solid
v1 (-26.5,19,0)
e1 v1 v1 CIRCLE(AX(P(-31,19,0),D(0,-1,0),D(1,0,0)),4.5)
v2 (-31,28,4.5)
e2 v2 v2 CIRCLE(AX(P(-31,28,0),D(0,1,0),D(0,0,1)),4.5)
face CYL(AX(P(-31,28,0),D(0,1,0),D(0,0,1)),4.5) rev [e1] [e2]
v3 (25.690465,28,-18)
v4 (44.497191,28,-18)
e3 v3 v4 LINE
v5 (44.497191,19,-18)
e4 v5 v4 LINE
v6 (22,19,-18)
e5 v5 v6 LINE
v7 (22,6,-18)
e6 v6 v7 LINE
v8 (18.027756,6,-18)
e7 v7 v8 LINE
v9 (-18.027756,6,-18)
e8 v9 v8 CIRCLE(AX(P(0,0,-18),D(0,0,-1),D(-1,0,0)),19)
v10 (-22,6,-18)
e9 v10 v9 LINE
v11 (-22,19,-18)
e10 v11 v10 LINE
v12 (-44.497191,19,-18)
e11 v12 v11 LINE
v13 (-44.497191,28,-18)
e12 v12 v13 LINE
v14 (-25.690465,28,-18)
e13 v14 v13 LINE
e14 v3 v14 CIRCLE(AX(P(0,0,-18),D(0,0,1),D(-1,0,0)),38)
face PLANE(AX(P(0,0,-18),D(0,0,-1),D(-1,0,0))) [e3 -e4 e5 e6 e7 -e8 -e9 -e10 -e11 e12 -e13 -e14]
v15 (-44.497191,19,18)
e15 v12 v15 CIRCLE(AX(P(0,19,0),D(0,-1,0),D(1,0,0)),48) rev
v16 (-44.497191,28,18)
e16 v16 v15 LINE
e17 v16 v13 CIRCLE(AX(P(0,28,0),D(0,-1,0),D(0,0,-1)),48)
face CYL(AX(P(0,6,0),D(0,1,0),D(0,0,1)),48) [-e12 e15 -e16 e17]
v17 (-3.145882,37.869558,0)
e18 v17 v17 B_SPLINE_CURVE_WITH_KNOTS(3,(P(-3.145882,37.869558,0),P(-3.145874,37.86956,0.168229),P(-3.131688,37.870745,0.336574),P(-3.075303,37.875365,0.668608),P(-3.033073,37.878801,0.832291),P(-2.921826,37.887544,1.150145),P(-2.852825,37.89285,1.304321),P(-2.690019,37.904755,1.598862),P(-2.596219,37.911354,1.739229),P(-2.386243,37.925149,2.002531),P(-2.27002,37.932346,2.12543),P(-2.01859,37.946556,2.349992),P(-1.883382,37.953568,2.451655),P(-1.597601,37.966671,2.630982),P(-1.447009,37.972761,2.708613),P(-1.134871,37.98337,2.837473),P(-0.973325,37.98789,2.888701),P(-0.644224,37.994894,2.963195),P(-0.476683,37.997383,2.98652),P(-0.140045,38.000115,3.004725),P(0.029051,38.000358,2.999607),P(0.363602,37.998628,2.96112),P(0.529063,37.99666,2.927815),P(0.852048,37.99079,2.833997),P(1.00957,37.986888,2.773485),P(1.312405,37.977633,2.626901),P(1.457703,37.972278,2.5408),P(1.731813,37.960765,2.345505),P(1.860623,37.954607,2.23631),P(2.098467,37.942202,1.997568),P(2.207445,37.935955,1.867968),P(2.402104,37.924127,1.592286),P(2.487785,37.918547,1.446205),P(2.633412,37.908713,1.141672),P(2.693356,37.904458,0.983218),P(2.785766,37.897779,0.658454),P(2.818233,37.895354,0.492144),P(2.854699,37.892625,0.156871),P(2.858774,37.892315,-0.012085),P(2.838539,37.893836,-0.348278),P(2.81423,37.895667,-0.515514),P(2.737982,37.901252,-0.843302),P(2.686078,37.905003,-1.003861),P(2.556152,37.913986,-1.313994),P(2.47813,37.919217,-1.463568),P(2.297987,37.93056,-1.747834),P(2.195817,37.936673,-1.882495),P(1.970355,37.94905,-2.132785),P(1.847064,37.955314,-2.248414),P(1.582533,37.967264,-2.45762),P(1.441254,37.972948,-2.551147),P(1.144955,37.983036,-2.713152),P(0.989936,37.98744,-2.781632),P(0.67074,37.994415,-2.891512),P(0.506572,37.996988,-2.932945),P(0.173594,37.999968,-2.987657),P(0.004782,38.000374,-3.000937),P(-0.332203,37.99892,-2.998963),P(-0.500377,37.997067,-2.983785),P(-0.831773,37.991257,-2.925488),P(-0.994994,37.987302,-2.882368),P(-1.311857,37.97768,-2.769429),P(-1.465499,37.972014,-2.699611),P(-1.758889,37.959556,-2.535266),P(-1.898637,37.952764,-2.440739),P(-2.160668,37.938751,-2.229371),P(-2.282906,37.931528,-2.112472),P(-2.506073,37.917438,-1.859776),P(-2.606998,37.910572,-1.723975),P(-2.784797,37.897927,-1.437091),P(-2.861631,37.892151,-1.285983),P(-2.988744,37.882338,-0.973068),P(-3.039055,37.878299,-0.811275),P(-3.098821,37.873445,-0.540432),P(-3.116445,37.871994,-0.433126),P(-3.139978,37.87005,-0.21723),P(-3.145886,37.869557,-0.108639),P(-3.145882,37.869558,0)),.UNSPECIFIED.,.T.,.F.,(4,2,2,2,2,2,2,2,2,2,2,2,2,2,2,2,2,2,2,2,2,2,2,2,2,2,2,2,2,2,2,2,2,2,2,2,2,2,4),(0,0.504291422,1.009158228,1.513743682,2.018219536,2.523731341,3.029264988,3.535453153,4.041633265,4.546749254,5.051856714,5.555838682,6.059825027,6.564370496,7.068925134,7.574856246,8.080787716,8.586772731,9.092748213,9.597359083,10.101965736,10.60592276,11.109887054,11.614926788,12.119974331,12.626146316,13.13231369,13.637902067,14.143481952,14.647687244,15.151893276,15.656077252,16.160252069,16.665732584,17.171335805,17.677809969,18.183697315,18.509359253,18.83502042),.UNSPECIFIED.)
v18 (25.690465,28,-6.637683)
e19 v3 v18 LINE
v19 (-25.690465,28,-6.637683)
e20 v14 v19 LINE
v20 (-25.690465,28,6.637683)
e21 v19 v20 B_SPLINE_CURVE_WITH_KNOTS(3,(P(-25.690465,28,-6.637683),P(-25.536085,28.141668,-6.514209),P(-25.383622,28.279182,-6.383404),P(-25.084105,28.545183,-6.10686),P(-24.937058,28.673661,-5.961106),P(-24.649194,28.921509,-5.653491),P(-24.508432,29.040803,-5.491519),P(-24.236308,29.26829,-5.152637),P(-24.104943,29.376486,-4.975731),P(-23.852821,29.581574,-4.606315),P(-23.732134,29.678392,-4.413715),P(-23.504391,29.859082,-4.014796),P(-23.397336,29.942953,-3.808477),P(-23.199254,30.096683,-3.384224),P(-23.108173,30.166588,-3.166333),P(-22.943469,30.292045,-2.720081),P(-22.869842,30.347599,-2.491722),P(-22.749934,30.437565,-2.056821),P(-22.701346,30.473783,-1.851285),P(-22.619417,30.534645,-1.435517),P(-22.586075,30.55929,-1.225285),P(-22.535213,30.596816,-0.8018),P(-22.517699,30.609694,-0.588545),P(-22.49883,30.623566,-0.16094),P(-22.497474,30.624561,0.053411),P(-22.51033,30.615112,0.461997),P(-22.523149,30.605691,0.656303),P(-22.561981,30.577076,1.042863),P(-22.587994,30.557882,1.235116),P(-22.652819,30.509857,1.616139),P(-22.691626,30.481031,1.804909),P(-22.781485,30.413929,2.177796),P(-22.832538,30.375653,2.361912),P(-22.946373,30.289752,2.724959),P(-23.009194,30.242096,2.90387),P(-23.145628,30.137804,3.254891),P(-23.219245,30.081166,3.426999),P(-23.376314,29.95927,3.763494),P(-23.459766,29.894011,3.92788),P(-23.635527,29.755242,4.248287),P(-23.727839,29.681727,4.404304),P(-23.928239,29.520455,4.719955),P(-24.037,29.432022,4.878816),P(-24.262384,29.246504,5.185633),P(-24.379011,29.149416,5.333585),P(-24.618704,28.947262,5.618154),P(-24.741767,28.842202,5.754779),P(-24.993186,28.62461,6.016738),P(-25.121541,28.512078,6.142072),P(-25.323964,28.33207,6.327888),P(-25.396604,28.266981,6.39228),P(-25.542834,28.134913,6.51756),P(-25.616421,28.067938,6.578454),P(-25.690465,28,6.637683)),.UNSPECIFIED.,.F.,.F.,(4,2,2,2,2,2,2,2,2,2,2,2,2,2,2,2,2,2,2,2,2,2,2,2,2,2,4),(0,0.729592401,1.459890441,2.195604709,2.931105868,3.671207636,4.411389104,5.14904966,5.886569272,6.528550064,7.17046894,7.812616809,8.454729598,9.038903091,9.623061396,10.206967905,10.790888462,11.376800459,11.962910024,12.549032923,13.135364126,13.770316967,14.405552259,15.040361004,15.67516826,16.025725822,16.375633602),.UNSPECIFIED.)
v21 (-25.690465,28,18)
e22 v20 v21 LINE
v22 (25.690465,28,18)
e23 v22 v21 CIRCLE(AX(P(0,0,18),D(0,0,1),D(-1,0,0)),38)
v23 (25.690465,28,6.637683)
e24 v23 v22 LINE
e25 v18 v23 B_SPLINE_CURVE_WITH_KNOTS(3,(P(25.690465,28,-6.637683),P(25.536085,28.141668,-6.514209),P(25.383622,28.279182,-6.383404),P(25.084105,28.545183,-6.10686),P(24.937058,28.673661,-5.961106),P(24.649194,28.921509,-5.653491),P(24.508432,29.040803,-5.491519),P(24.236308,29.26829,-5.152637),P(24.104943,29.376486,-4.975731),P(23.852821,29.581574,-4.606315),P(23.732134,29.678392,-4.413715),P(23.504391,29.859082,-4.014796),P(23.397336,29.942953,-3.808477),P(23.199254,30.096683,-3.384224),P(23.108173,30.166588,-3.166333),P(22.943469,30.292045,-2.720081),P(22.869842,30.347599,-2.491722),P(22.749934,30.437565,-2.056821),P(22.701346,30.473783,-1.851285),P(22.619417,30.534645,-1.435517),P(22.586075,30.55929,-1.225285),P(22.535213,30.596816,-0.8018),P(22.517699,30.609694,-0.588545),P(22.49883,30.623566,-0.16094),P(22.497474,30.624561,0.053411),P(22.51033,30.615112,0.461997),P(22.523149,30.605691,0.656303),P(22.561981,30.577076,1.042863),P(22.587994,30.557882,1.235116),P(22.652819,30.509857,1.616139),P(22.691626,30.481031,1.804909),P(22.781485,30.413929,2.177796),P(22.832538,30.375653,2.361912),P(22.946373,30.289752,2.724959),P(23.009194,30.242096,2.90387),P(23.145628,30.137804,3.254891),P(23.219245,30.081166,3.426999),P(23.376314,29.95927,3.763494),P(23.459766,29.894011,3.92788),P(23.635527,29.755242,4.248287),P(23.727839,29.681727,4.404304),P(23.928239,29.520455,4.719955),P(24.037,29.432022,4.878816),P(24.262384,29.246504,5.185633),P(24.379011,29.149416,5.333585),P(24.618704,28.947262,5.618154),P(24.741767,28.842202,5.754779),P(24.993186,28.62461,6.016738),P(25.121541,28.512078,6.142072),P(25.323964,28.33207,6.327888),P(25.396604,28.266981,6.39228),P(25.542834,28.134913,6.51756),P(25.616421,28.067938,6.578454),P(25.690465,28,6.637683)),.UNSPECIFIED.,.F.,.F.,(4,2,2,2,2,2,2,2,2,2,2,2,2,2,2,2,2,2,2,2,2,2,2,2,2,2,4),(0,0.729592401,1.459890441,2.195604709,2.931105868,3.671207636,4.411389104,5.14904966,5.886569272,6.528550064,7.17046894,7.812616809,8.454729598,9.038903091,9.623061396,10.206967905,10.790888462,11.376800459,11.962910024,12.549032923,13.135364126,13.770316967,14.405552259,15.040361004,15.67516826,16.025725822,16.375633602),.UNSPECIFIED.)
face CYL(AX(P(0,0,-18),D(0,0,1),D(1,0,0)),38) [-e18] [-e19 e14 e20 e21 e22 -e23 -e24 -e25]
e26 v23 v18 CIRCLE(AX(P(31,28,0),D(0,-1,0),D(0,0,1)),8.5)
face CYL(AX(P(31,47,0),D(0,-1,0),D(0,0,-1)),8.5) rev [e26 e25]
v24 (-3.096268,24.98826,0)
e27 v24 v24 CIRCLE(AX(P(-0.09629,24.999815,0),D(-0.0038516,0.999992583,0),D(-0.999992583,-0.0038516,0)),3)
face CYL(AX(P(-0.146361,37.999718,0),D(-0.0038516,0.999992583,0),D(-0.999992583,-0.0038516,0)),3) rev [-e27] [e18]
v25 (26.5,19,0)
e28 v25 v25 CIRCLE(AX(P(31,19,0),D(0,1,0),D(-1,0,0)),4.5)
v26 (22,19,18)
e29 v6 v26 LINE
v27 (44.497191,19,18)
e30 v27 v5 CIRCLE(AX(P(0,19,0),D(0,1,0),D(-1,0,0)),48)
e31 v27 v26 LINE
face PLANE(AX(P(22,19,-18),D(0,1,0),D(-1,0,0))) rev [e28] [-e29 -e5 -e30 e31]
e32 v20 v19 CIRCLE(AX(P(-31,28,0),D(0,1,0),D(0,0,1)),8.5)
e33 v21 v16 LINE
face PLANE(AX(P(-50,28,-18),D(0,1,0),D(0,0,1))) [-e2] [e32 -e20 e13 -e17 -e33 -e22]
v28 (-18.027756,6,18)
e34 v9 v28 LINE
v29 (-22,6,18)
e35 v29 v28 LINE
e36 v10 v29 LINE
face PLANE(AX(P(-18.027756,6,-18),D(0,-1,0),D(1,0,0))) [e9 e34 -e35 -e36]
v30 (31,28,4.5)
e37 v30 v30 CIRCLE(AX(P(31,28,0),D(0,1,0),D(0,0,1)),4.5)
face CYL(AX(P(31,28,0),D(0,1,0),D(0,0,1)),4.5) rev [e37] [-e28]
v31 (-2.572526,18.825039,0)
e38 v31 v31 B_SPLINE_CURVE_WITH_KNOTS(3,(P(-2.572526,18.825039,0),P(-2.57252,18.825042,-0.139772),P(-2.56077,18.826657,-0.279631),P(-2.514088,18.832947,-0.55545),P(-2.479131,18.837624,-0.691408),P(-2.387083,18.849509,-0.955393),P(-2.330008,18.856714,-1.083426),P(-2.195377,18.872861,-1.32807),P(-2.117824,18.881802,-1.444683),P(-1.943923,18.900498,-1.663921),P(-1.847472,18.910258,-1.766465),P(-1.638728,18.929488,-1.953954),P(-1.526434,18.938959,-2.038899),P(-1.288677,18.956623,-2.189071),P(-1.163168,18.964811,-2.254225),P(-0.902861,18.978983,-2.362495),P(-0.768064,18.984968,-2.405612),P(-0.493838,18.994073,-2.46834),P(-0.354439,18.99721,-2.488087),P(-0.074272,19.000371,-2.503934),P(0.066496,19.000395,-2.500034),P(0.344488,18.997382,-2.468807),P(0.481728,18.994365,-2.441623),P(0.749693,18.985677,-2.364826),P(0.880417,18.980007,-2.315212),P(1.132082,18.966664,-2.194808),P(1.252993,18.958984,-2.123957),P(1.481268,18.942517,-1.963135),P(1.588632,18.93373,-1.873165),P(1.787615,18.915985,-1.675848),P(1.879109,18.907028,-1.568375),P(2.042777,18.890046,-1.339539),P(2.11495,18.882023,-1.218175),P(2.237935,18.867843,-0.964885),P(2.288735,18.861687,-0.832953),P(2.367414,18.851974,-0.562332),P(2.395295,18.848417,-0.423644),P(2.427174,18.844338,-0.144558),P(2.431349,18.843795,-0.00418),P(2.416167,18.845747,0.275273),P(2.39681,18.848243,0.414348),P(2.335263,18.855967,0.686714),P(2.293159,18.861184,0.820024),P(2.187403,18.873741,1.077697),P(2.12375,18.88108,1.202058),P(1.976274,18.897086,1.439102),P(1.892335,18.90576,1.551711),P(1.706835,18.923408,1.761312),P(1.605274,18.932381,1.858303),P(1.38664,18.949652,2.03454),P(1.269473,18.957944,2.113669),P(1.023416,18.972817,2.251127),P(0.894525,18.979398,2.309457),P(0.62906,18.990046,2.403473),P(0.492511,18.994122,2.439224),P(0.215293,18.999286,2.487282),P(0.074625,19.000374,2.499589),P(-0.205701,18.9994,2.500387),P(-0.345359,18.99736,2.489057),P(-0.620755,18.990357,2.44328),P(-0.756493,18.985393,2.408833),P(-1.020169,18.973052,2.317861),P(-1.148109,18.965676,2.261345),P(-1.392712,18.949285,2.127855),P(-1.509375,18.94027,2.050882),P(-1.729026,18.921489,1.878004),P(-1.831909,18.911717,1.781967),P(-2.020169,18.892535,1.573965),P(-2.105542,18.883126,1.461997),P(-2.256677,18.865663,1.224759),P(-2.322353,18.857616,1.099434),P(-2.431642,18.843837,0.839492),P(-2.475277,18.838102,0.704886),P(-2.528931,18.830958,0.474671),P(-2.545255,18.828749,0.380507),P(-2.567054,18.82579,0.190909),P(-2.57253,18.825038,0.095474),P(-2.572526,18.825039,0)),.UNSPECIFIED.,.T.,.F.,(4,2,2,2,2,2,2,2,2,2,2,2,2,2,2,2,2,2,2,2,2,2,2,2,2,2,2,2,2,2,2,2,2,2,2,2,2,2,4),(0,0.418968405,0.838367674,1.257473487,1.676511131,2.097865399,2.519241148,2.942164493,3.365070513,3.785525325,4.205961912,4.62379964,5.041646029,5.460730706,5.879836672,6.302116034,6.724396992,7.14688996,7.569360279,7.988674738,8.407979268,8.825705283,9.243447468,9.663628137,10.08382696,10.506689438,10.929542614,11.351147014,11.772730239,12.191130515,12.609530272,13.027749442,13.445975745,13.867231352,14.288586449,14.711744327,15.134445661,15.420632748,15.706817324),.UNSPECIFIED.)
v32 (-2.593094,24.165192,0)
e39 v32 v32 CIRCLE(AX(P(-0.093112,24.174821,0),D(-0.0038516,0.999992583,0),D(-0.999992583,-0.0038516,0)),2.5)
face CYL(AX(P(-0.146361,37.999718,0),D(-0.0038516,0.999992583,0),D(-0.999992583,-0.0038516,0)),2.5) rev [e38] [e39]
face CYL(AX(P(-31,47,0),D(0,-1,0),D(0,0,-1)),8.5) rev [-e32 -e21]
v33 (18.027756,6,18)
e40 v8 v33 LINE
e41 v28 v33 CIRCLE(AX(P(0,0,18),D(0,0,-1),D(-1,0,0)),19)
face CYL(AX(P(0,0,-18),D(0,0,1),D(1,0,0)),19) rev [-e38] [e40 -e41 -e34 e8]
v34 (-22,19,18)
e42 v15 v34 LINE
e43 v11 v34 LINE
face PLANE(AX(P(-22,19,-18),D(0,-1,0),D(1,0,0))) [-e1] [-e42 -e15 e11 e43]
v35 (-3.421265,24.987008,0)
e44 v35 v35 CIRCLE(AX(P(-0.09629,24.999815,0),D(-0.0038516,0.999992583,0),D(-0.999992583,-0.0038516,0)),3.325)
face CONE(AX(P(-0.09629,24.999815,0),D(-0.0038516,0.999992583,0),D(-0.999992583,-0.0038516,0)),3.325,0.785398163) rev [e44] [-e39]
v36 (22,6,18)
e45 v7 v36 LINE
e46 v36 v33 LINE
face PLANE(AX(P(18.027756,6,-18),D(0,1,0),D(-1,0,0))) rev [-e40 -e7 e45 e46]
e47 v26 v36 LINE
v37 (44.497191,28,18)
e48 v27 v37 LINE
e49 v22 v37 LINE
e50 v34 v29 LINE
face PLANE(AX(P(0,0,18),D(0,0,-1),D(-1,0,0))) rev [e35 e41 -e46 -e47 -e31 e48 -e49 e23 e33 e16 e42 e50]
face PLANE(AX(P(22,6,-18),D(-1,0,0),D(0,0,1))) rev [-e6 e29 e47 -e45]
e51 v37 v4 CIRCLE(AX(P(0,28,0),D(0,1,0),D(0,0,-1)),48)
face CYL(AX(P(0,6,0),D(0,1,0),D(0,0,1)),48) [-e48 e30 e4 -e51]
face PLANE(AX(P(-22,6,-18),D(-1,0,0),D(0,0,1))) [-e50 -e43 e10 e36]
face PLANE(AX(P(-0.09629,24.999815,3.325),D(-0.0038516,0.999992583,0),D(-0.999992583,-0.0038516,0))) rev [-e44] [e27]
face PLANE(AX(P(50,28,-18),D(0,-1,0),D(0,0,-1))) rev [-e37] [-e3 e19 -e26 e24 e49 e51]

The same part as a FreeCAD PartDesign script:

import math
import FreeCAD as App
import Part
import Sketcher

V = App.Vector
Q = App.Units.Quantity


def add_polygon(sketch, points):
    """Adds a closed chain of lines whose ends are joined by coincident constraints."""
    first, n = sketch.GeometryCount, len(points)
    for a, b in zip(points, points[1:] + points[:1]):
        sketch.addGeometry(Part.LineSegment(App.Vector(*a, 0), App.Vector(*b, 0)), False)
    for i in range(n):
        sketch.addConstraint(Sketcher.Constraint("Coincident", first + i, 2, first + (i + 1) % n, 1))

doc = App.newDocument("Part")
body = doc.addObject("PartDesign::Body", "Body")

sketch1 = body.newObject("Sketcher::SketchObject", "Sketch")
sketch1.AttachmentSupport = (doc.getObject("XY_Plane"), [""])
sketch1.MapMode = "FlatFace"
sketch1.addGeometry([
    Part.LineSegment(V(-22, 6, 0), V(-18, 6, 0)),
    Part.ArcOfCircle(Part.Circle(V(0, 0, 0), V(0, 0, 1), 19), math.radians(90), math.radians(162)),
    Part.LineSegment(V(0, 19, 0), V(0, 38, 0)),
    Part.ArcOfCircle(Part.Circle(V(0, 0, 0), V(0, 0, 1), 38), math.radians(90), math.radians(133)),
    Part.LineSegment(V(-25.7, 28, 0), V(-50, 28, 0)),
    Part.LineSegment(V(-50, 28, 0), V(-50, 19, 0)),
    Part.LineSegment(V(-50, 19, 0), V(-22, 19, 0)),
    Part.LineSegment(V(-22, 19, 0), V(-22, 6, 0)),
], False)
sketch1.addConstraint([
    Sketcher.Constraint("Coincident", 0, 2, 1, 2),
    Sketcher.Constraint("Coincident", 1, 1, 2, 1),
    Sketcher.Constraint("Coincident", 2, 2, 3, 1),
    Sketcher.Constraint("Coincident", 3, 2, 4, 1),
    Sketcher.Constraint("Coincident", 4, 2, 5, 1),
    Sketcher.Constraint("Coincident", 5, 2, 6, 1),
    Sketcher.Constraint("Coincident", 6, 2, 7, 1),
    Sketcher.Constraint("Coincident", 7, 2, 0, 1),
    Sketcher.Constraint("Horizontal", 0),
    Sketcher.Constraint("Vertical", 2),
    Sketcher.Constraint("Horizontal", 4),
    Sketcher.Constraint("Vertical", 5),
    Sketcher.Constraint("Horizontal", 6),
    Sketcher.Constraint("Vertical", 7),
    Sketcher.Constraint("Coincident", 1, 3, -1, 1),
    Sketcher.Constraint("Coincident", 3, 3, -1, 1),
    Sketcher.Constraint("PointOnObject", 1, 1, -2),
    Sketcher.Constraint("Horizontal", 1, 1, 5, 2),
    Sketcher.Constraint("Radius", 1, Q("19 mm")),
    Sketcher.Constraint("Radius", 3, Q("38 mm")),
    Sketcher.Constraint("DistanceX", 6, 1, 6, 2, Q("28 mm")),
    Sketcher.Constraint("DistanceY", 5, 2, 5, 1, Q("9 mm")),
    Sketcher.Constraint("DistanceY", 7, 2, 7, 1, Q("13 mm")),
    Sketcher.Constraint("DistanceX", 4, 2, -1, 1, Q("50 mm")),
])
pad1 = body.newObject("PartDesign::Pad", "Pad")
pad1.Profile = sketch1
pad1.Length = 36
pad1.Midplane = True
doc.recompute()

mirrored = body.newObject("PartDesign::Mirrored", "Mirrored")
mirrored.Originals = [pad1]
mirrored.MirrorPlane = (doc.getObject("YZ_Plane"), [""])
body.Tip = mirrored

sketch2 = body.newObject("Sketcher::SketchObject", "Sketch001")
sketch2.AttachmentSupport = (doc.getObject("XZ_Plane"), [""])
sketch2.MapMode = "FlatFace"
sketch2.AttachmentOffset = App.Placement(V(0, 0, -28), App.Rotation())
sketch2.addGeometry(Part.Circle(V(-31, 0, 0), V(0, 0, 1), 4.5), False)
sketch2.addConstraint([
    Sketcher.Constraint("PointOnObject", 0, 3, -1),
    Sketcher.Constraint("Diameter", 0, Q("9 mm")),
    Sketcher.Constraint("DistanceX", 0, 3, -1, 1, Q("31 mm")),
])
doc.recompute()
hole = body.newObject("PartDesign::Hole", "Hole")
hole.Profile = sketch2
hole.ThreadType = "None"
hole.Diameter = 9
hole.DepthType = "ThroughAll"
hole.Reversed = True

sketch3 = body.newObject("Sketcher::SketchObject", "Sketch002")
sketch3.AttachmentSupport = (doc.getObject("XZ_Plane"), [""])
sketch3.MapMode = "FlatFace"
sketch3.AttachmentOffset = App.Placement(V(0, 0, -28), App.Rotation())
sketch3.addGeometry(Part.Circle(V(-31, 0, 0), V(0, 0, 1), 8), False)
sketch3.addConstraint([
    Sketcher.Constraint("PointOnObject", 0, 3, -1),
    Sketcher.Constraint("Diameter", 0, Q("17 mm")),
    Sketcher.Constraint("DistanceX", 0, 3, -1, 1, Q("31 mm")),
])
pocket1 = body.newObject("PartDesign::Pocket", "Pocket")
pocket1.Profile = sketch3
pocket1.Length = 19
doc.recompute()

mirrored2 = body.newObject("PartDesign::Mirrored", "Mirrored001")
mirrored2.Originals = [pocket1]
mirrored2.MirrorPlane = (doc.getObject("YZ_Plane"), [""])
body.Tip = mirrored2

sketch4 = body.newObject("Sketcher::SketchObject", "Sketch003")
sketch4.AttachmentSupport = (doc.getObject("XZ_Plane"), [""])
sketch4.MapMode = "FlatFace"
sketch4.AttachmentOffset = App.Placement(V(0, 0, -28), App.Rotation())
sketch4.addGeometry([
    Part.LineSegment(V(-44, -18, 0), V(-50, -18, 0)),
    Part.LineSegment(V(-50, -18, 0), V(-50, 18, 0)),
    Part.LineSegment(V(-50, 18, 0), V(-44, 18, 0)),
    Part.ArcOfCircle(Part.Circle(V(0, 0, 0), V(0, 0, 1), 48), math.radians(158), math.radians(202)),
], False)
sketch4.addConstraint([
    Sketcher.Constraint("Coincident", 0, 2, 1, 1),
    Sketcher.Constraint("Coincident", 1, 2, 2, 1),
    Sketcher.Constraint("Coincident", 2, 2, 3, 1),
    Sketcher.Constraint("Coincident", 3, 2, 0, 1),
    Sketcher.Constraint("Horizontal", 0),
    Sketcher.Constraint("Vertical", 1),
    Sketcher.Constraint("Horizontal", 2),
    Sketcher.Constraint("Coincident", 3, 3, -1, 1),
    Sketcher.Constraint("Vertical", 2, 2, 3, 2),
    Sketcher.Constraint("Radius", 3, Q("48 mm")),
    Sketcher.Constraint("DistanceY", 1, 1, 1, 2, Q("36 mm")),
    Sketcher.Constraint("DistanceX", 0, 2, -1, 1, Q("50 mm")),
])
pocket2 = body.newObject("PartDesign::Pocket", "Pocket001")
pocket2.Profile = sketch4
pocket2.Type = "ThroughAll"
pocket2.Reversed = True
doc.recompute()

mirrored3 = body.newObject("PartDesign::Mirrored", "Mirrored002")
mirrored3.Originals = [pocket2]
mirrored3.MirrorPlane = (doc.getObject("YZ_Plane"), [""])
body.Tip = mirrored3

sketch5 = body.newObject("Sketcher::SketchObject", "Sketch004")
sketch5.AttachmentSupport = (doc.getObject("XY_Plane"), [""])
sketch5.MapMode = "FlatFace"
add_polygon(sketch5, [(-0.02, 5.82), (-0.15, 38), (-3.15, 37.99), (-3.1, 24.99), (-3.42, 24.99), (-2.59, 24.17), (-2.52, 5.81)])
sketch5.addGeometry(Part.LineSegment(V(-0.15, 38, 0), V(-0.02, 5.82, 0)), True)
sketch5.addConstraint([
    Sketcher.Constraint("Coincident", 7, 1, 0, 2),
    Sketcher.Constraint("Coincident", 7, 2, 6, 2),
    Sketcher.Constraint("Perpendicular", 0, 1),
    Sketcher.Constraint("Perpendicular", 1, 2),
    Sketcher.Constraint("Perpendicular", 2, 3),
    Sketcher.Constraint("Perpendicular", 3, 5),
    Sketcher.Constraint("Perpendicular", 5, 6),
    Sketcher.Constraint("Distance", 1, Q("3 mm")),
    Sketcher.Constraint("Distance", 2, Q("13 mm")),
    Sketcher.Constraint("Distance", 6, Q("2.5 mm")),
    Sketcher.Constraint("Distance", 3, Q("0.325 mm")),
    Sketcher.Constraint("DistanceY", 5, 2, 3, 2, Q("19.181601 mm")),
    Sketcher.Constraint("Distance", 0, Q("32.184921 mm")),
    Sketcher.Constraint("Distance", 5, Q("18.359921 mm")),
    Sketcher.Constraint("DistanceX", 0, 2, -1, 1, Q("0.146361 mm")),
    Sketcher.Constraint("DistanceY", -1, 1, 0, 2, Q("37.999718 mm")),
])
groove = body.newObject("PartDesign::Groove", "Groove")
groove.Profile = sketch5
groove.ReferenceAxis = (sketch5, ["Axis0"])
groove.Angle = 360

sketch6 = body.newObject("Sketcher::SketchObject", "Sketch005")
sketch6.AttachmentSupport = (doc.getObject("XZ_Plane"), [""])
sketch6.MapMode = "FlatFace"
sketch6.AttachmentOffset = App.Placement(V(0, 0, -28), App.Rotation())
sketch6.addGeometry(Part.Circle(V(31, 0, 0), V(0, 0, 1), 4.5), False)
sketch6.addConstraint([
    Sketcher.Constraint("PointOnObject", 0, 3, -1),
    Sketcher.Constraint("Diameter", 0, Q("9 mm")),
    Sketcher.Constraint("DistanceX", -1, 1, 0, 3, Q("31 mm")),
])
doc.recompute()
hole2 = body.newObject("PartDesign::Hole", "Hole001")
hole2.Profile = sketch6
hole2.ThreadType = "None"
hole2.Diameter = 9
hole2.DepthType = "ThroughAll"
hole2.Reversed = True

doc.recompute()
